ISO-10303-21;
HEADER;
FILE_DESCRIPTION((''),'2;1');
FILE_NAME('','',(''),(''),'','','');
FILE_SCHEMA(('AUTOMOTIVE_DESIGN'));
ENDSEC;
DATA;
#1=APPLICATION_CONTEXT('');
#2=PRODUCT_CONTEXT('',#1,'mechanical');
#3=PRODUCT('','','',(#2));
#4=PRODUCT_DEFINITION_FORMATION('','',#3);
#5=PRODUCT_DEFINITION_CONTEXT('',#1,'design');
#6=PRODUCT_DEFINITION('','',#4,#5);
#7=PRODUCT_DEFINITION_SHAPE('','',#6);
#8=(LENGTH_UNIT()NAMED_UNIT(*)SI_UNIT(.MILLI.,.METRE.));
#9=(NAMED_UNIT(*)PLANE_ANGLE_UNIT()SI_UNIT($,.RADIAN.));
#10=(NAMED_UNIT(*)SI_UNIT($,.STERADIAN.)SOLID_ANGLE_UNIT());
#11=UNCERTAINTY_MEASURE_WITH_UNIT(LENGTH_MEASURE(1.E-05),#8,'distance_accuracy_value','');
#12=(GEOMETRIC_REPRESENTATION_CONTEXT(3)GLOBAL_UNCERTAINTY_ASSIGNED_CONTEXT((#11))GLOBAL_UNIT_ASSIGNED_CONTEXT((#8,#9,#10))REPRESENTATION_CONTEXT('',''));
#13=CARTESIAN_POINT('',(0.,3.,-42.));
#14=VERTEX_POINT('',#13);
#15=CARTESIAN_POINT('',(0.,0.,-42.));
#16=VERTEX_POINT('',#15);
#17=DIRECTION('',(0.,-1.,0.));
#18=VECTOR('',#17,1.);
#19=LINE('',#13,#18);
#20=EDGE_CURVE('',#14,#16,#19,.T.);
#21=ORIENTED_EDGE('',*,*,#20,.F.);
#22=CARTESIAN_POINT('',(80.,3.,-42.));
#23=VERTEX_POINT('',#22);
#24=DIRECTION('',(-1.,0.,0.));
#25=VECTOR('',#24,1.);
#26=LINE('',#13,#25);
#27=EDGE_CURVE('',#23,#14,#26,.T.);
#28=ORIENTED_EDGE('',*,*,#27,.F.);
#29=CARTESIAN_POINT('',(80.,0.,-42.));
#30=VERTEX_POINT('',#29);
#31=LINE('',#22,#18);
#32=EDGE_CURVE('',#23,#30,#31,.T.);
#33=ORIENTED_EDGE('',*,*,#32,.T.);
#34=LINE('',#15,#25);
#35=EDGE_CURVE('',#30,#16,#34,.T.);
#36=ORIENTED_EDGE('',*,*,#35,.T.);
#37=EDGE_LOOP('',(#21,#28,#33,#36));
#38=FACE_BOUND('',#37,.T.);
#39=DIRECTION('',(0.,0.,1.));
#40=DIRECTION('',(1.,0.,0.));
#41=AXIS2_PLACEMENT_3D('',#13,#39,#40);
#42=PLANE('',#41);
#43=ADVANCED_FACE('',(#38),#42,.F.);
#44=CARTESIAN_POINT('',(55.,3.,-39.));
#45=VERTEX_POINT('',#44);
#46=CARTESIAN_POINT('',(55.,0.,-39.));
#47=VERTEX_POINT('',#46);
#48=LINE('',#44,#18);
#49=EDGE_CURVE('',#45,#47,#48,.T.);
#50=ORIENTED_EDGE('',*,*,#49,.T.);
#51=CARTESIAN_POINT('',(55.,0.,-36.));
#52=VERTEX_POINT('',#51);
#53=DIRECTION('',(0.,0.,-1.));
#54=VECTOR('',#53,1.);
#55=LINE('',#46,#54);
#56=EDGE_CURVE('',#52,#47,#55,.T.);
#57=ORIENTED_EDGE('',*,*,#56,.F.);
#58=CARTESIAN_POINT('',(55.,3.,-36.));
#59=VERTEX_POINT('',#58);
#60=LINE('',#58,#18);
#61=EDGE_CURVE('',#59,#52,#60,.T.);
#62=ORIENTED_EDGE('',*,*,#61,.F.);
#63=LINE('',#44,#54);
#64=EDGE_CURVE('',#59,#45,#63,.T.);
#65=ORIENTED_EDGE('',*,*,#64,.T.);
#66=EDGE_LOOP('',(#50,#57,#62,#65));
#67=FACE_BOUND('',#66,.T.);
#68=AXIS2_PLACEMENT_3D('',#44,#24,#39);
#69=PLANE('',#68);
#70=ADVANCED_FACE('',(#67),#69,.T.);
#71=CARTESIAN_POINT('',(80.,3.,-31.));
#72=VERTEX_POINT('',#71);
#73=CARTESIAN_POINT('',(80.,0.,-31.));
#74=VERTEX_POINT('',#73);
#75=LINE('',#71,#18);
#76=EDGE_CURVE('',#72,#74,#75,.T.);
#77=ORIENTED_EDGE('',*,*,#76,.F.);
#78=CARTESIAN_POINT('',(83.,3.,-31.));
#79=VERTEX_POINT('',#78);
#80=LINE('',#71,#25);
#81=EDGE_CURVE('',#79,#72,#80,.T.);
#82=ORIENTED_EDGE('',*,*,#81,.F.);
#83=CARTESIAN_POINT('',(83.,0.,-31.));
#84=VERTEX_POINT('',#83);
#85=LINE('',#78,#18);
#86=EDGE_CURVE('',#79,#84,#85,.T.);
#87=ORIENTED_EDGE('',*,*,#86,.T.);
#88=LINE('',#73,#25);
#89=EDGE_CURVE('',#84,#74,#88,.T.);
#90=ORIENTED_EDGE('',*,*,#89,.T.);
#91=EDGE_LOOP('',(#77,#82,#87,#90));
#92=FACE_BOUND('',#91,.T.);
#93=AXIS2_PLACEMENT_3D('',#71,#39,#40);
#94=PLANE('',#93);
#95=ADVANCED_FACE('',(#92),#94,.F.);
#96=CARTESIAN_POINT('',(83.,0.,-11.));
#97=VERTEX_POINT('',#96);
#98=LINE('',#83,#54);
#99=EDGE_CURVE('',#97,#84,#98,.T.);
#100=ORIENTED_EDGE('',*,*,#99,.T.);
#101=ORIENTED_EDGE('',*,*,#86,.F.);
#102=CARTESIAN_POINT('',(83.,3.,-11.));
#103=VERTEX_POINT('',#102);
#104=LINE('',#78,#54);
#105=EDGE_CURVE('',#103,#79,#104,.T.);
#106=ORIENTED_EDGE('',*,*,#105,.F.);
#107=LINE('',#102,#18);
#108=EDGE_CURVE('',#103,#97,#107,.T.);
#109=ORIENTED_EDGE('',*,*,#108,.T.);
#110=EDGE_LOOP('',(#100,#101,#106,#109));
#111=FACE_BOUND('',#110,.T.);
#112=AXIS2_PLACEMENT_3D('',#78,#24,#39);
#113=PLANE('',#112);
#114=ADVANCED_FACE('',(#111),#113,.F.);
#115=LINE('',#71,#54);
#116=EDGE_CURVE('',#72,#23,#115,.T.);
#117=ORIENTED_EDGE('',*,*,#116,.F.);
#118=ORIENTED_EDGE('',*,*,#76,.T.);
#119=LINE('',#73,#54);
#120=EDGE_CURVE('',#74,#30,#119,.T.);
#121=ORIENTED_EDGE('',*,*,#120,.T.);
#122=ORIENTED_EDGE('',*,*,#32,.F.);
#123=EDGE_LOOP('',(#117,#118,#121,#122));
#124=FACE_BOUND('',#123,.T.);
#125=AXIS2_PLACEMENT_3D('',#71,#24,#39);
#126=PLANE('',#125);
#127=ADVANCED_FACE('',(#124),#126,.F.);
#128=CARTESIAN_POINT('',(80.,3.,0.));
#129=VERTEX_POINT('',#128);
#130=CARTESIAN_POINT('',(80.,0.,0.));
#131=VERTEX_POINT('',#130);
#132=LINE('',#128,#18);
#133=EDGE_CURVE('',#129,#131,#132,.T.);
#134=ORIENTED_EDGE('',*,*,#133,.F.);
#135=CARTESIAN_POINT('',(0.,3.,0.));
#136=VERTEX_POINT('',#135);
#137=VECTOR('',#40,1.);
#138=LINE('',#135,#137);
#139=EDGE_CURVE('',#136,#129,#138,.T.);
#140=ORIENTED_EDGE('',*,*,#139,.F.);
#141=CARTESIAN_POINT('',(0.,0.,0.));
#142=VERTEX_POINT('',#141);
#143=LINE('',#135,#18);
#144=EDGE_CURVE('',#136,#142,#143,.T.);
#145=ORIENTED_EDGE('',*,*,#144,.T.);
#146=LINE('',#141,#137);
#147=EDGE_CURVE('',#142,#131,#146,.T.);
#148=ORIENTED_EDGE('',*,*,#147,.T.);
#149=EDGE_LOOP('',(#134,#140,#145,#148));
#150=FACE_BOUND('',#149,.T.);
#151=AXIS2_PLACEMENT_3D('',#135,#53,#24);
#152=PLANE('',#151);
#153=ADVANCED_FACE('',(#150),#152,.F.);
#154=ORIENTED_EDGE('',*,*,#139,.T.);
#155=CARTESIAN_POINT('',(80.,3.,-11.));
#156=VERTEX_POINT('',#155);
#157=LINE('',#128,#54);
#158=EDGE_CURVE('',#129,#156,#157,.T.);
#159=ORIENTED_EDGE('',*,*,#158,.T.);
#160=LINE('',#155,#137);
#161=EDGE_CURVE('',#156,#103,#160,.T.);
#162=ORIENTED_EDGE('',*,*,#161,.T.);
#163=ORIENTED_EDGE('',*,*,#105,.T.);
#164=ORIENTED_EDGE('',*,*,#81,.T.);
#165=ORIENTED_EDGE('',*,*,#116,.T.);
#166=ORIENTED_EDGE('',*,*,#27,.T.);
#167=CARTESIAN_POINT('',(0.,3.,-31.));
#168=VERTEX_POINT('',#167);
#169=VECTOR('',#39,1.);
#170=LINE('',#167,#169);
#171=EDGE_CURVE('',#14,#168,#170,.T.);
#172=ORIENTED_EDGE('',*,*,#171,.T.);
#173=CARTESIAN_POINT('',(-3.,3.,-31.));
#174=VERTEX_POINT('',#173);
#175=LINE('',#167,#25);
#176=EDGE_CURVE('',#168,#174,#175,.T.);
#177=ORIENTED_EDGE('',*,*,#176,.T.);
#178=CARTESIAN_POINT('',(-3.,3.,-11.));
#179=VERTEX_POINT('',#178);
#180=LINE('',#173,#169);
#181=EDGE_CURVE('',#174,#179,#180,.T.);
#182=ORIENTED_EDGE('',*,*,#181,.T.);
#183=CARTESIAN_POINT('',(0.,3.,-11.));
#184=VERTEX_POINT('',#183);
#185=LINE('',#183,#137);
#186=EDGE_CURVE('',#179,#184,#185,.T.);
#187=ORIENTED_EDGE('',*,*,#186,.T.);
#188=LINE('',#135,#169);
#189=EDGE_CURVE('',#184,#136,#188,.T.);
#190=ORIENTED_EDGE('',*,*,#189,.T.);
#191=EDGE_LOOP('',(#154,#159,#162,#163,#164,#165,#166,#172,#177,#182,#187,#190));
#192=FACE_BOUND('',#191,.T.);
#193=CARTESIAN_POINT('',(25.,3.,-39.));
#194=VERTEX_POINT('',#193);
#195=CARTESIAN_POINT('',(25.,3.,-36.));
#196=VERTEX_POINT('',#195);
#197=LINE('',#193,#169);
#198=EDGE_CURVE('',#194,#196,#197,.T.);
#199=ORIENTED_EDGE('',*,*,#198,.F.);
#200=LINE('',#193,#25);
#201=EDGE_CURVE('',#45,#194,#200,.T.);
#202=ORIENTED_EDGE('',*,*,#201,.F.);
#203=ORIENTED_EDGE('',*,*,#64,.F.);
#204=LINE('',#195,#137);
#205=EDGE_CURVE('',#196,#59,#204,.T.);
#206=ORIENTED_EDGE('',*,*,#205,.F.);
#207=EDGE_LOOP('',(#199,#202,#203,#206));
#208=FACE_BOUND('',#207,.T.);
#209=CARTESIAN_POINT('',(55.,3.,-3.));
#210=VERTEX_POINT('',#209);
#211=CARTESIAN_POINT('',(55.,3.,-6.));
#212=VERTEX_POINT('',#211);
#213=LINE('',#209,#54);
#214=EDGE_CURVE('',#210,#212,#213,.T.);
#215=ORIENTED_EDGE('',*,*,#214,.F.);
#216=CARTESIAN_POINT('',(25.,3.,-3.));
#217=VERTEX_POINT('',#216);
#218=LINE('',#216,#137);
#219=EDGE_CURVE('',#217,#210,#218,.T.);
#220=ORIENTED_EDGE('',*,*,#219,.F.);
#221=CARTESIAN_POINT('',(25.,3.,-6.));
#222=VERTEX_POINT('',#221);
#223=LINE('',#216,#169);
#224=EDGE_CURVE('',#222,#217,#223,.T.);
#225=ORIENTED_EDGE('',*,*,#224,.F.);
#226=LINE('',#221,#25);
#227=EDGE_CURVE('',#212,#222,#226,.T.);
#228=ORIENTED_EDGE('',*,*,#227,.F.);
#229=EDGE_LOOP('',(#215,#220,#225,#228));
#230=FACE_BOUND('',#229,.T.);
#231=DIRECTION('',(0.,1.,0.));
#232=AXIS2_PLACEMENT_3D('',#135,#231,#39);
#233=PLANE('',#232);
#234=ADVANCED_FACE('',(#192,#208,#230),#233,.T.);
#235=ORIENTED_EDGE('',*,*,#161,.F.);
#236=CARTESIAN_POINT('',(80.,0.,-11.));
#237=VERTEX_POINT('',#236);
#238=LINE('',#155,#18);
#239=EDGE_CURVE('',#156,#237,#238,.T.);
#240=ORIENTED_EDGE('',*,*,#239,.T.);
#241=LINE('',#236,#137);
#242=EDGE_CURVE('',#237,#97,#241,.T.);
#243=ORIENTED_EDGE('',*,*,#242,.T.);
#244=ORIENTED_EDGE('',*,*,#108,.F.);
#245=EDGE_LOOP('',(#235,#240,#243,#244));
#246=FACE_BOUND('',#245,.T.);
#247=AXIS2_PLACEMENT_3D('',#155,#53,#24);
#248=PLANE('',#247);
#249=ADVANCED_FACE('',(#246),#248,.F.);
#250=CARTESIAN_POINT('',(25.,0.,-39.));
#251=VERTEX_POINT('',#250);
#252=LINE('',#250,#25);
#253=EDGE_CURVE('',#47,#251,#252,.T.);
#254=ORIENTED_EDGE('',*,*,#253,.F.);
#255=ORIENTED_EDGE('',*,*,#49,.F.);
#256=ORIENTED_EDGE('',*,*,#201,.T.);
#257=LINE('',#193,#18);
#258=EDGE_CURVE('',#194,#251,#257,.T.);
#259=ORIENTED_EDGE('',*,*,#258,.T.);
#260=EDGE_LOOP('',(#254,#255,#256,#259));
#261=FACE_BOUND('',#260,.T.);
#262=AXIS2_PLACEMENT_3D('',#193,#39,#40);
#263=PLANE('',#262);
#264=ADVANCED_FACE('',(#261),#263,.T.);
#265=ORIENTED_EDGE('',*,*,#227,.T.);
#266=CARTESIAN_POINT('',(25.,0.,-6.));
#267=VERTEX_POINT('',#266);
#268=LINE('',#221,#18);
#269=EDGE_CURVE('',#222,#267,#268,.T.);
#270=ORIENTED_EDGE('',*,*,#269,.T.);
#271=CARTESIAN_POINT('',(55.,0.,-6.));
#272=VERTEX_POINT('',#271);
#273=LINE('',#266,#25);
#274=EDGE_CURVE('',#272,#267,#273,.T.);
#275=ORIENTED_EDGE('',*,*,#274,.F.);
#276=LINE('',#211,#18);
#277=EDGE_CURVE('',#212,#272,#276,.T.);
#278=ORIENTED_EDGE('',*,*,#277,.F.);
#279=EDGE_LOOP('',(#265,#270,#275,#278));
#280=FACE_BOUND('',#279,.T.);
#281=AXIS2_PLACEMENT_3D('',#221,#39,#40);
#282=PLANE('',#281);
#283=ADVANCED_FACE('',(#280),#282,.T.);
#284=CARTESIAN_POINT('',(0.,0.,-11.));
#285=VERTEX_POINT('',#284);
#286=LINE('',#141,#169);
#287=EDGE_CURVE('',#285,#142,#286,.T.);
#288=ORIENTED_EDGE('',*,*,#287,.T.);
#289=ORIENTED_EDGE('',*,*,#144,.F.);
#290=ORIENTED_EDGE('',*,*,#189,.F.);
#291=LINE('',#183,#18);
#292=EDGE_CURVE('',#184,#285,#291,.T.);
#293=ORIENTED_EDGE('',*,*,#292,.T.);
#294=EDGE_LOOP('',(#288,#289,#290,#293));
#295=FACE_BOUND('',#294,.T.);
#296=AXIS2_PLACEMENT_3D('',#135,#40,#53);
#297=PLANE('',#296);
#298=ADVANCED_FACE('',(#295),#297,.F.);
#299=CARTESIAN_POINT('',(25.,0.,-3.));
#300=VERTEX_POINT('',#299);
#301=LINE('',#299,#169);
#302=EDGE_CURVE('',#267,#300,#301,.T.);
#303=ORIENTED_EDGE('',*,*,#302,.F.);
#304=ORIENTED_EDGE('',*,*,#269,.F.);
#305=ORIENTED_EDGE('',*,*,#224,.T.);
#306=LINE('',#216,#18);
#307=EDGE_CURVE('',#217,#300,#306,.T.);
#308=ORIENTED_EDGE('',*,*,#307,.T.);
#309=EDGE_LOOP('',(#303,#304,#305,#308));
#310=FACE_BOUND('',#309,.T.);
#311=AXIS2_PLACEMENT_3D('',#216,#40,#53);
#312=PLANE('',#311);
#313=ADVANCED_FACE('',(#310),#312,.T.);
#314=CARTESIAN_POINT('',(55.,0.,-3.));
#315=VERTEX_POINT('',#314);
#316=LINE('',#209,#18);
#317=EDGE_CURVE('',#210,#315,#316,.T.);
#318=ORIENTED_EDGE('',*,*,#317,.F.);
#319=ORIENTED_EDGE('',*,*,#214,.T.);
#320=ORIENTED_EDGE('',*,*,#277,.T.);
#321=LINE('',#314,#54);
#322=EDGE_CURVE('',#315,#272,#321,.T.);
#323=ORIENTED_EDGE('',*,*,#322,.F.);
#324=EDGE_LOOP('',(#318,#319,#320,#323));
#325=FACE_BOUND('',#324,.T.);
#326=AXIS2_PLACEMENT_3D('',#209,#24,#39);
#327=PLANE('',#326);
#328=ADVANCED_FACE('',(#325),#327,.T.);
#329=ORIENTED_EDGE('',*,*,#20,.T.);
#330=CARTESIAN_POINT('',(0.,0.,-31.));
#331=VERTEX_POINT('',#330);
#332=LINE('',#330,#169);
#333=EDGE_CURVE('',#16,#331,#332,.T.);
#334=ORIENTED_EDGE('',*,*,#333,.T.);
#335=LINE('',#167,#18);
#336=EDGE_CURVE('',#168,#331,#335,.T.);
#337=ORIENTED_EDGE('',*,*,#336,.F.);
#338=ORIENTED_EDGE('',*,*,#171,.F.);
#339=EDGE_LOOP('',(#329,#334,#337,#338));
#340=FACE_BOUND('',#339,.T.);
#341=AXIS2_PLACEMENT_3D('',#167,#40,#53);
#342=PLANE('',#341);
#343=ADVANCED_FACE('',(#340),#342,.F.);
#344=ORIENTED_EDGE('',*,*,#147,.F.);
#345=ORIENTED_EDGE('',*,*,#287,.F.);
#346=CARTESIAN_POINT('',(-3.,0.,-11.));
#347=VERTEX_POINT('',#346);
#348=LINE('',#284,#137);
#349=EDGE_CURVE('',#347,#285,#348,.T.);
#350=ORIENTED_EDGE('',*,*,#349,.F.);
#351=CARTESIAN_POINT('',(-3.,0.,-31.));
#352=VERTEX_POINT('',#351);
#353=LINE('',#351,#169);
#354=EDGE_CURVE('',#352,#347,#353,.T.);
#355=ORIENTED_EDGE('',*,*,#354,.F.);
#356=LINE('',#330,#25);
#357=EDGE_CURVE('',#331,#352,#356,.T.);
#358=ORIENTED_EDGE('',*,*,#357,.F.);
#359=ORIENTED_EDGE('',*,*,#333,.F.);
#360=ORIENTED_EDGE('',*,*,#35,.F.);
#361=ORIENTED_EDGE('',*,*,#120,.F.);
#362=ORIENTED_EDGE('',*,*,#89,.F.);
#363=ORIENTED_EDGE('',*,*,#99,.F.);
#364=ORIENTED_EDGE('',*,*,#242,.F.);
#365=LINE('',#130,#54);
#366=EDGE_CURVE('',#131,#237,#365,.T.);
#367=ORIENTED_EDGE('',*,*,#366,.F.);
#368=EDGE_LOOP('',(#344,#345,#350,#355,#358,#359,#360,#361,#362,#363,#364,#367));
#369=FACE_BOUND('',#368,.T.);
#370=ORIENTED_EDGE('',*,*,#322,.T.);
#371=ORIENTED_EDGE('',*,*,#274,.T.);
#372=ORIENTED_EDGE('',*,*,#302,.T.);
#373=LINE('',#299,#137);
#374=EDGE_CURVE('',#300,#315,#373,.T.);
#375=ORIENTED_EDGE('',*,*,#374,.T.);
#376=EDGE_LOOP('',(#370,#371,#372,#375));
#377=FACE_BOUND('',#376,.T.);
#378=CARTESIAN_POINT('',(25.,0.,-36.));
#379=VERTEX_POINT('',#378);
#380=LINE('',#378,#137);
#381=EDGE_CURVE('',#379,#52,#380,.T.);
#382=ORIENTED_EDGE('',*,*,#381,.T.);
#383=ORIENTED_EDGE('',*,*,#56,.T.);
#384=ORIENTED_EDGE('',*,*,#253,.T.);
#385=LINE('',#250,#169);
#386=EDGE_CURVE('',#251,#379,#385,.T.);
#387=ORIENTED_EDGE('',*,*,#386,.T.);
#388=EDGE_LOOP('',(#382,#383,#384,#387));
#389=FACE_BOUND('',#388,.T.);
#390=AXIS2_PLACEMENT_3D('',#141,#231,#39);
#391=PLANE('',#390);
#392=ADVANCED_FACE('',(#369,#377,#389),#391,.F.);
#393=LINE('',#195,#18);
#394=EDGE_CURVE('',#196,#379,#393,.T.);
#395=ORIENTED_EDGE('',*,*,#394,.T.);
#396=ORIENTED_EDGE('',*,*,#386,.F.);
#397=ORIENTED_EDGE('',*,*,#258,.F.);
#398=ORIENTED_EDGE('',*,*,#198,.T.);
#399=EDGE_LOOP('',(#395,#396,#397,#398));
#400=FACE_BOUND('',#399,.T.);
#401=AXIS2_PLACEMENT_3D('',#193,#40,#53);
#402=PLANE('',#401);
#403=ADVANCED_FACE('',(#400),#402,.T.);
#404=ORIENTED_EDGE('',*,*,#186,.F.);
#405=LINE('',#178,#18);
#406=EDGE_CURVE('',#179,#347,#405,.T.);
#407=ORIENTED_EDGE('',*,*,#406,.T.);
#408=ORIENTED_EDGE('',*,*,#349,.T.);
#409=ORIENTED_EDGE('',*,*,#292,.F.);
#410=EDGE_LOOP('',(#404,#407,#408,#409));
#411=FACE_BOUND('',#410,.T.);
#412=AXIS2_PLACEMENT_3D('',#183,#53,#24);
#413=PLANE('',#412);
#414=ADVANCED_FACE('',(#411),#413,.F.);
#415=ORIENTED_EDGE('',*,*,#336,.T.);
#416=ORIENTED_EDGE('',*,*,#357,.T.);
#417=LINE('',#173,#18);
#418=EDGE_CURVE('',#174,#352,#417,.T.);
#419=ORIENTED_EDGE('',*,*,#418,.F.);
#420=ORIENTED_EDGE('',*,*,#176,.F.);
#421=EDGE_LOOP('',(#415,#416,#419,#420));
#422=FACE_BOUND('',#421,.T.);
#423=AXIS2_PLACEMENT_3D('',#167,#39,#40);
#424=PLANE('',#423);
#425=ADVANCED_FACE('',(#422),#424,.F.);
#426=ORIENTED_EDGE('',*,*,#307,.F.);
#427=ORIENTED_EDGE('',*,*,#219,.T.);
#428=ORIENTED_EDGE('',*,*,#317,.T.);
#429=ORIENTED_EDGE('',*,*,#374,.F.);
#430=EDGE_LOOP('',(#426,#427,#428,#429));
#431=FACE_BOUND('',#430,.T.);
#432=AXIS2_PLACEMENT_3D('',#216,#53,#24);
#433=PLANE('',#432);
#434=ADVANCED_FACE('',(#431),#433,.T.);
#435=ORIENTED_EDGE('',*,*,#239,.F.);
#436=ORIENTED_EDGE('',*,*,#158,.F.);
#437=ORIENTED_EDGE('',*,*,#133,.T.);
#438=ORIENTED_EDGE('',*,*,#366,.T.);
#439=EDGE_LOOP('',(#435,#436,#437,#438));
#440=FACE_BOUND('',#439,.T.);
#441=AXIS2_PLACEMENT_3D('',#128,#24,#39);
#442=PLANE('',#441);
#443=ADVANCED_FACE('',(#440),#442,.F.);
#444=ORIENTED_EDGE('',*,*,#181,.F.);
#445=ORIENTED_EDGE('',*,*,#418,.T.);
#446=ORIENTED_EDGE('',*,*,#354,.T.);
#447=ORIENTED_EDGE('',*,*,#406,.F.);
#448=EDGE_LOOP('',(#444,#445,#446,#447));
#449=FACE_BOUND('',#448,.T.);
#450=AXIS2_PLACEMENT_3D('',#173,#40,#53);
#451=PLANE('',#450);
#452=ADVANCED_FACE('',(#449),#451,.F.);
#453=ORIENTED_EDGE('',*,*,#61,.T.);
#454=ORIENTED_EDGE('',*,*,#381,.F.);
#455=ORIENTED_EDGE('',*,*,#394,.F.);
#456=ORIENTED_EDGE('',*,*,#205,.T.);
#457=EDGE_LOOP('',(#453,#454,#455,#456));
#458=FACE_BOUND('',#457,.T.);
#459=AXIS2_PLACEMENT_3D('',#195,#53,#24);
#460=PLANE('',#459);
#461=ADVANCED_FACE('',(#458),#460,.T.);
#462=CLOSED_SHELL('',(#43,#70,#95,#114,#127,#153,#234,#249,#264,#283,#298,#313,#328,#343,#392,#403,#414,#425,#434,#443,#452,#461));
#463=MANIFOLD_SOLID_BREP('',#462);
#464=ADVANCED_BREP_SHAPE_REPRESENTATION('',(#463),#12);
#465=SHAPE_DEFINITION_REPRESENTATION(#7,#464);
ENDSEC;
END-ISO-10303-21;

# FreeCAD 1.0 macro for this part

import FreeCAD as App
import Part
import Sketcher

V = App.Vector


def add_polygon(sketch, points):
    """Adds a closed chain of lines whose ends are joined by coincident constraints."""
    first, n = sketch.GeometryCount, len(points)
    for a, b in zip(points, points[1:] + points[:1]):
        sketch.addGeometry(Part.LineSegment(App.Vector(*a, 0), App.Vector(*b, 0)), False)
    for i in range(n):
        sketch.addConstraint(Sketcher.Constraint("Coincident", first + i, 2, first + (i + 1) % n, 1))

doc = App.newDocument("Part")
body = doc.addObject("PartDesign::Body", "Body")

# Sketch on XZ plane
sketch1 = body.newObject("Sketcher::SketchObject", "Sketch")
sketch1.AttachmentSupport = (doc.getObject("XZ_Plane"), [""])
sketch1.MapMode = "FlatFace"
add_polygon(sketch1, [(0, -42), (0, -31), (-3, -31), (-3, -11), (0, -11), (0, 0), (80, 0), (80, -11), (83, -11), (83, -31), (80, -31), (80, -42)])  # lines 0-11
add_polygon(sketch1, [(25, -3), (25, -6), (55, -6), (55, -3)])  # lines 12-15
add_polygon(sketch1, [(25, -36), (25, -39), (55, -39), (55, -36)])  # lines 16-19
sketch1.addConstraint(Sketcher.Constraint("Vertical", 0))
sketch1.addConstraint(Sketcher.Constraint("Horizontal", 1))
sketch1.addConstraint(Sketcher.Constraint("Vertical", 2))
sketch1.addConstraint(Sketcher.Constraint("Horizontal", 3))
sketch1.addConstraint(Sketcher.Constraint("Vertical", 4))
sketch1.addConstraint(Sketcher.Constraint("Horizontal", 5))
sketch1.addConstraint(Sketcher.Constraint("Vertical", 6))
sketch1.addConstraint(Sketcher.Constraint("Horizontal", 7))
sketch1.addConstraint(Sketcher.Constraint("Vertical", 8))
sketch1.addConstraint(Sketcher.Constraint("Horizontal", 9))
sketch1.addConstraint(Sketcher.Constraint("Vertical", 10))
sketch1.addConstraint(Sketcher.Constraint("Horizontal", 11))
sketch1.addConstraint(Sketcher.Constraint("Vertical", 12))
sketch1.addConstraint(Sketcher.Constraint("Horizontal", 13))
sketch1.addConstraint(Sketcher.Constraint("Vertical", 14))
sketch1.addConstraint(Sketcher.Constraint("Horizontal", 15))
sketch1.addConstraint(Sketcher.Constraint("Vertical", 16))
sketch1.addConstraint(Sketcher.Constraint("Horizontal", 17))
sketch1.addConstraint(Sketcher.Constraint("Vertical", 18))
sketch1.addConstraint(Sketcher.Constraint("Horizontal", 19))
sketch1.addConstraint(Sketcher.Constraint("Coincident", 4, 2, -1, 1))
sketch1.addConstraint(Sketcher.Constraint("PointOnObject", 0, 2, -2))
sketch1.addConstraint(Sketcher.Constraint("Horizontal", 3, 2, 6, 2))
sketch1.addConstraint(Sketcher.Constraint("Horizontal", 1, 2, 8, 2))
sketch1.addConstraint(Sketcher.Constraint("Vertical", 6, 2, 9, 2))
sketch1.addConstraint(Sketcher.Constraint("Vertical", 15, 2, 16, 2))
sketch1.addConstraint(Sketcher.Constraint("Vertical", 14, 2, 17, 2))
sketch1.addConstraint(Sketcher.Constraint("Equal", 3, 7))
sketch1.addConstraint(Sketcher.Constraint("Equal", 0, 4))
sketch1.addConstraint(Sketcher.Constraint("Equal", 9, 12))
sketch1.addConstraint(Sketcher.Constraint("Equal", 14, 16))
sketch1.addConstraint(Sketcher.Constraint("DistanceX", 1, 2, 1, 1, 3.0))
sketch1.addConstraint(Sketcher.Constraint("DistanceX", 5, 1, 5, 2, 80.0))
sketch1.addConstraint(Sketcher.Constraint("DistanceX", 13, 1, 13, 2, 30.0))
sketch1.addConstraint(Sketcher.Constraint("DistanceY", 0, 1, 0, 2, 11.0))
sketch1.addConstraint(Sketcher.Constraint("DistanceY", 2, 1, 2, 2, 20.0))
sketch1.addConstraint(Sketcher.Constraint("DistanceX", -1, 1, 12, 2, 25.0))
sketch1.addConstraint(Sketcher.Constraint("DistanceY", 12, 2, -1, 1, 6.0))
sketch1.addConstraint(Sketcher.Constraint("DistanceY", 16, 2, -1, 1, 39.0))
pad1 = body.newObject("PartDesign::Pad", "Pad")
pad1.Profile = sketch1
pad1.Length = 3
pad1.Reversed = True

doc.recompute()
